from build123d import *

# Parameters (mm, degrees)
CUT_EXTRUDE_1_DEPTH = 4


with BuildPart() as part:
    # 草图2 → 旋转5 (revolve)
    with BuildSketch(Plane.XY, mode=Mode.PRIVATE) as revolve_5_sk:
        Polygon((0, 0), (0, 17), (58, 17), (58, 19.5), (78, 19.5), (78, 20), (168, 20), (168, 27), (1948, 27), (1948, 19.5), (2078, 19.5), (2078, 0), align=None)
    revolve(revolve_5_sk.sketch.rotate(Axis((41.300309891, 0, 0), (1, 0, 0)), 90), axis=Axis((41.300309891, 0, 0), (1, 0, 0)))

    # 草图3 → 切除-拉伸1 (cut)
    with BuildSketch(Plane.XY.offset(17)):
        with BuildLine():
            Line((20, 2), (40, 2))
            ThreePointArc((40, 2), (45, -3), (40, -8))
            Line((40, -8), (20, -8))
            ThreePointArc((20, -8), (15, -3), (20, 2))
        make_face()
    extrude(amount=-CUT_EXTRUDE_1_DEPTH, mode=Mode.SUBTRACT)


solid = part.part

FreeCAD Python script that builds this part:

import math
import FreeCAD as App
import Part
import Sketcher
from FreeCAD import Vector
Q = App.Units.Quantity


def add_polygon(sketch, points):
    """Adds a closed chain of lines whose ends are joined by coincident constraints."""
    first, n = sketch.GeometryCount, len(points)
    for a, b in zip(points, points[1:] + points[:1]):
        sketch.addGeometry(Part.LineSegment(App.Vector(*a, 0), App.Vector(*b, 0)), False)
    for i in range(n):
        sketch.addConstraint(Sketcher.Constraint("Coincident", first + i, 2, first + (i + 1) % n, 1))

doc = App.newDocument("Part")
body = doc.addObject("PartDesign::Body", "Body")

# Sketch on XY plane
sketch1 = doc.addObject("Sketcher::SketchObject", "Sketch")
body.addObject(sketch1)
sketch1.AttachmentSupport = (doc.XY_Plane, [""])
sketch1.MapMode = "FlatFace"
add_polygon(sketch1, [(0, 17), (0, 0), (2078, 0), (2078, 19.5), (1948, 19.5), (1948, 27), (168, 27), (168, 20), (78, 20), (78, 19.5), (58, 19.5), (58, 17)])  # lines 0-11
sketch1.addConstraint([
    Sketcher.Constraint("Vertical", 0),
    Sketcher.Constraint("Horizontal", 1),
    Sketcher.Constraint("Vertical", 2),
    Sketcher.Constraint("Horizontal", 3),
    Sketcher.Constraint("Vertical", 4),
    Sketcher.Constraint("Horizontal", 5),
    Sketcher.Constraint("Vertical", 6),
    Sketcher.Constraint("Horizontal", 7),
    Sketcher.Constraint("Vertical", 8),
    Sketcher.Constraint("Horizontal", 9),
    Sketcher.Constraint("Vertical", 10),
    Sketcher.Constraint("Horizontal", 11),
    Sketcher.Constraint("Coincident", 0, 2, -1, 1),
    Sketcher.Constraint("Horizontal", 3, 2, 8, 2),
    Sketcher.Constraint("DistanceX", 1, 1, 1, 2, Q("2078 mm")),
    Sketcher.Constraint("DistanceX", 3, 2, 3, 1, Q("130 mm")),
    Sketcher.Constraint("DistanceX", 5, 2, 5, 1, Q("1780 mm")),
    Sketcher.Constraint("DistanceX", 7, 2, 7, 1, Q("90 mm")),
    Sketcher.Constraint("DistanceX", 9, 2, 9, 1, Q("20 mm")),
    Sketcher.Constraint("DistanceY", 0, 2, 0, 1, Q("17 mm")),
    Sketcher.Constraint("DistanceY", 6, 2, 6, 1, Q("7 mm")),
    Sketcher.Constraint("DistanceY", 2, 1, 2, 2, Q("19.5 mm")),
    Sketcher.Constraint("DistanceY", 4, 1, 4, 2, Q("7.5 mm")),
])
revolution = doc.addObject("PartDesign::Revolution", "Revolution")
body.addObject(revolution)
revolution.Profile = sketch1
revolution.ReferenceAxis = (sketch1, ["H_Axis"])
revolution.Angle = 360

# Sketch on XY plane
sketch2 = doc.addObject("Sketcher::SketchObject", "Sketch001")
body.addObject(sketch2)
sketch2.AttachmentSupport = (doc.XY_Plane, [""])
sketch2.MapMode = "FlatFace"
sketch2.AttachmentOffset = App.Placement(Vector(0, 0, 17), App.Rotation())
sketch2.addGeometry([
    Part.LineSegment(Vector(40, 2, 0), Vector(20, 2, 0)),
    Part.ArcOfCircle(Part.Circle(Vector(20, -3, 0), Vector(0, 0, 1), 5), math.radians(90), math.radians(270)),
    Part.LineSegment(Vector(20, -8, 0), Vector(40, -8, 0)),
    Part.ArcOfCircle(Part.Circle(Vector(40, -3, 0), Vector(0, 0, 1), 5), math.radians(-90), math.radians(90)),
], False)
sketch2.addConstraint([
    Sketcher.Constraint("Tangent", 0, 2, 1, 1),
    Sketcher.Constraint("Tangent", 1, 2, 2, 1),
    Sketcher.Constraint("Tangent", 2, 2, 3, 1),
    Sketcher.Constraint("Tangent", 3, 2, 0, 1),
    Sketcher.Constraint("Horizontal", 0),
    Sketcher.Constraint("Horizontal", 2),
    Sketcher.Constraint("Radius", 1, Q("5 mm")),
    Sketcher.Constraint("DistanceX", 0, 2, 0, 1, Q("20 mm")),
    Sketcher.Constraint("DistanceX", -1, 1, 1, 3, Q("20 mm")),
    Sketcher.Constraint("DistanceY", 1, 3, -1, 1, Q("3 mm")),
])
pocket1 = doc.addObject("PartDesign::Pocket", "Pocket")
body.addObject(pocket1)
pocket1.Profile = sketch2
pocket1.Length = 4

doc.recompute()
